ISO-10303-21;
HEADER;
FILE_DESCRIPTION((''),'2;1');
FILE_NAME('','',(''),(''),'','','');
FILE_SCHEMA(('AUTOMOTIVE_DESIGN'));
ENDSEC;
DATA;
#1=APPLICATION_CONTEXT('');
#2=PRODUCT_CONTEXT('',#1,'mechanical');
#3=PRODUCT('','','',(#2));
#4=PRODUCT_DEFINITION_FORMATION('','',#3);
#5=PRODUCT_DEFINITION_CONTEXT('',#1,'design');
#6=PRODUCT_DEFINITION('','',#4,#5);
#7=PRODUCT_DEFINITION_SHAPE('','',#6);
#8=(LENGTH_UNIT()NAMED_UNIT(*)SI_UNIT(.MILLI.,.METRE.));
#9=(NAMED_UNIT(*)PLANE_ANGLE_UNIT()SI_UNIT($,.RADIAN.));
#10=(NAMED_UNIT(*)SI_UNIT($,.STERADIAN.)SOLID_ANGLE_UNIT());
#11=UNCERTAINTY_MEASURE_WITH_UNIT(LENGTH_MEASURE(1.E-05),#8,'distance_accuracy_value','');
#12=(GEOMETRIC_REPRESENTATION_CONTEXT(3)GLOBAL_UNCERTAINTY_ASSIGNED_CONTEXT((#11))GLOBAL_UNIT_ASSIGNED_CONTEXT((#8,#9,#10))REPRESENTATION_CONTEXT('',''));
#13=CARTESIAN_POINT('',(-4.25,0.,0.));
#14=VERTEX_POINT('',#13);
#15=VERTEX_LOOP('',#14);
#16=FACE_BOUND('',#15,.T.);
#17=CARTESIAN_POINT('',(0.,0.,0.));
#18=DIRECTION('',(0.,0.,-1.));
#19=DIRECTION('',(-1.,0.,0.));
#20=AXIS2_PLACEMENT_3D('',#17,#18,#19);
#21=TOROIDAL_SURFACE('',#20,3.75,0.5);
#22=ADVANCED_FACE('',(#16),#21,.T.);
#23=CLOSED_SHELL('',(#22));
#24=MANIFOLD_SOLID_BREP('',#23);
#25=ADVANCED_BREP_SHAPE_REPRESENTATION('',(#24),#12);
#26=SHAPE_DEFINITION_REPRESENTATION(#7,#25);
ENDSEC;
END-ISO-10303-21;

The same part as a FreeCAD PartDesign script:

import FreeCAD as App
import Part
import Sketcher

V = App.Vector
Q = App.Units.Quantity

doc = App.newDocument("Part")
params = doc.addObject("Spreadsheet::Sheet", "Params")
for row, (alias, value) in enumerate([
    ("sketch1_diameter", "1 mm"),
    ("revolution_angle", "360 deg"),
], start=1):
    params.set(f"A{row}", alias)
    params.set(f"B{row}", "=" + value)
    params.setAlias(f"B{row}", alias)

body = doc.addObject("PartDesign::Body", "Body")

sketch1 = body.newObject("Sketcher::SketchObject", "Sketch")
sketch1.AttachmentSupport = (doc.getObject("XZ_Plane"), [""])
sketch1.MapMode = "FlatFace"
sketch1.addGeometry(Part.Circle(V(3.8, 0, 0), V(0, 0, 1), 0.5), False)
sketch1.addConstraint(Sketcher.Constraint("PointOnObject", 0, 3, -1))
sketch1.addConstraint(Sketcher.Constraint("Diameter", 0, Q("1 mm")))
sketch1.addConstraint(Sketcher.Constraint("DistanceX", -1, 1, 0, 3, Q("3.75 mm")))
sketch1.setExpression("Constraints[1]", "Params.sketch1_diameter")
revolution = body.newObject("PartDesign::Revolution", "Revolution")
revolution.Profile = sketch1
revolution.ReferenceAxis = (sketch1, ["V_Axis"])
revolution.setExpression("Angle", "Params.revolution_angle")

doc.recompute()
